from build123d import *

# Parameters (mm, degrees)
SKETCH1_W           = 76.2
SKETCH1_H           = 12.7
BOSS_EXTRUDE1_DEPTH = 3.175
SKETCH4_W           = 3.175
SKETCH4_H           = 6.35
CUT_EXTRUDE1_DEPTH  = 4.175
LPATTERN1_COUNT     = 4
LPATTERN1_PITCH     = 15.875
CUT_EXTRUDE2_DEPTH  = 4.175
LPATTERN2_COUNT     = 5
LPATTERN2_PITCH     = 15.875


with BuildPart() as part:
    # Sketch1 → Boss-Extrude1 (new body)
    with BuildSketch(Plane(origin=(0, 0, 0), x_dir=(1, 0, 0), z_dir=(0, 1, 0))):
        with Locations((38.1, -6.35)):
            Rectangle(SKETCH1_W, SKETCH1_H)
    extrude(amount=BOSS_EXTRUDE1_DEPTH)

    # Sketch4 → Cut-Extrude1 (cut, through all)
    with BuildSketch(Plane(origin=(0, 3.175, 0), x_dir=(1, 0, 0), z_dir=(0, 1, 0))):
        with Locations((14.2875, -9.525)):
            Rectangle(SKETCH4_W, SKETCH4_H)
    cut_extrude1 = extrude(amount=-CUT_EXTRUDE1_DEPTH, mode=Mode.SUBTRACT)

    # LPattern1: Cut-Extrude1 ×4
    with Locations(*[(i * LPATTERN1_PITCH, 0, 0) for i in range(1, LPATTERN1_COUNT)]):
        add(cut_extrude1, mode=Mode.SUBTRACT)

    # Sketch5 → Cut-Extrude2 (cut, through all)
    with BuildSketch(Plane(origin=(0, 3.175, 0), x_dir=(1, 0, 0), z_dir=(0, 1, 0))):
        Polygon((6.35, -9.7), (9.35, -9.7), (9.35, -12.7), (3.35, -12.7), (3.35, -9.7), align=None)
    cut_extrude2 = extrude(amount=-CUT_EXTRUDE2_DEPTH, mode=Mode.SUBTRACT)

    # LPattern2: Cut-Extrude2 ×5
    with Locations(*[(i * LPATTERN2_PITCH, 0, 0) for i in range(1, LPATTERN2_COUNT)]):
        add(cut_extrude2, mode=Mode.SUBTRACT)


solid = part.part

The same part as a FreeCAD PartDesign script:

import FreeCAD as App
import Part
import Sketcher
Q = App.Units.Quantity

doc = App.newDocument("Part")
body = doc.addObject("PartDesign::Body", "Body")

# Sketch on XZ plane
sketch1 = doc.addObject("Sketcher::SketchObject", "Sketch")
body.addObject(sketch1)
sketch1.AttachmentSupport = (doc.XZ_Plane, [""])
sketch1.MapMode = "FlatFace"
sketch1.addGeometry([
    Part.LineSegment(App.Vector(0, 0, 0), App.Vector(0, 13, 0)),
    Part.LineSegment(App.Vector(0, 13, 0), App.Vector(76, 13, 0)),
    Part.LineSegment(App.Vector(76, 13, 0), App.Vector(76, 0, 0)),
    Part.LineSegment(App.Vector(76, 0, 0), App.Vector(0, 0, 0)),
], False)
sketch1.addConstraint([
    Sketcher.Constraint("Coincident", 0, 2, 1, 1),
    Sketcher.Constraint("Coincident", 1, 2, 2, 1),
    Sketcher.Constraint("Coincident", 2, 2, 3, 1),
    Sketcher.Constraint("Coincident", 3, 2, 0, 1),
    Sketcher.Constraint("Vertical", 0),
    Sketcher.Constraint("Horizontal", 1),
    Sketcher.Constraint("Vertical", 2),
    Sketcher.Constraint("Horizontal", 3),
    Sketcher.Constraint("Coincident", 3, 2, -1, 1),
    Sketcher.Constraint("DistanceX", 1, 1, 1, 2, Q("3 in")),
    Sketcher.Constraint("DistanceY", 0, 1, 0, 2, Q("0.5 in")),
])
pad1 = doc.addObject("PartDesign::Pad", "Pad")
body.addObject(pad1)
pad1.Profile = sketch1
pad1.Length = Q("0.125 in")
pad1.Reversed = True

# Sketch on XZ plane
sketch2 = doc.addObject("Sketcher::SketchObject", "Sketch001")
body.addObject(sketch2)
sketch2.AttachmentSupport = (doc.XZ_Plane, [""])
sketch2.MapMode = "FlatFace"
sketch2.AttachmentOffset = App.Placement(App.Vector(0, 0, -0.125 * 25.4), App.Rotation())
sketch2.addGeometry([
    Part.LineSegment(App.Vector(12.7, 6.3, 0), App.Vector(12.7, 12.7, 0)),
    Part.LineSegment(App.Vector(12.7, 12.7, 0), App.Vector(15.9, 12.7, 0)),
    Part.LineSegment(App.Vector(15.9, 12.7, 0), App.Vector(15.9, 6.3, 0)),
    Part.LineSegment(App.Vector(15.9, 6.3, 0), App.Vector(12.7, 6.3, 0)),
], False)
sketch2.addConstraint([
    Sketcher.Constraint("Coincident", 0, 2, 1, 1),
    Sketcher.Constraint("Coincident", 1, 2, 2, 1),
    Sketcher.Constraint("Coincident", 2, 2, 3, 1),
    Sketcher.Constraint("Coincident", 3, 2, 0, 1),
    Sketcher.Constraint("Vertical", 0),
    Sketcher.Constraint("Horizontal", 1),
    Sketcher.Constraint("Vertical", 2),
    Sketcher.Constraint("Horizontal", 3),
    Sketcher.Constraint("DistanceY", 0, 1, 0, 2, Q("0.25 in")),
    Sketcher.Constraint("DistanceX", -1, 1, 0, 2, Q("0.5 in")),
    Sketcher.Constraint("DistanceY", -1, 1, 0, 2, Q("0.5 in")),
    Sketcher.Constraint("DistanceX", 1, 1, 1, 2, Q("0.125 in")),
])
pocket1 = doc.addObject("PartDesign::Pocket", "Pocket")
body.addObject(pocket1)
pocket1.Profile = sketch2
pocket1.Type = "ThroughAll"
pocket1.Reversed = True
doc.recompute()

linearpattern = doc.addObject("PartDesign::LinearPattern", "LinearPattern")
body.addObject(linearpattern)
linearpattern.Originals = [pocket1]
linearpattern.Direction = (doc.X_Axis, [""])
linearpattern.Mode = "offset"
linearpattern.Offset = Q("0.625 in")
linearpattern.Occurrences = 4
body.Tip = linearpattern

# Sketch on XZ plane
sketch3 = doc.addObject("Sketcher::SketchObject", "Sketch002")
body.addObject(sketch3)
sketch3.AttachmentSupport = (doc.XZ_Plane, [""])
sketch3.MapMode = "FlatFace"
sketch3.AttachmentOffset = App.Placement(App.Vector(0, 0, -0.125 * 25.4), App.Rotation())
sketch3.addGeometry([
    Part.LineSegment(App.Vector(9.3, 9.7, 0), App.Vector(3.4, 9.7, 0)),
    Part.LineSegment(App.Vector(3.4, 9.7, 0), App.Vector(3.4, 12.7, 0)),
    Part.LineSegment(App.Vector(3.4, 12.7, 0), App.Vector(9.3, 12.7, 0)),
    Part.LineSegment(App.Vector(9.3, 12.7, 0), App.Vector(9.3, 9.7, 0)),
], False)
sketch3.addConstraint([
    Sketcher.Constraint("Coincident", 0, 2, 1, 1),
    Sketcher.Constraint("Coincident", 1, 2, 2, 1),
    Sketcher.Constraint("Coincident", 2, 2, 3, 1),
    Sketcher.Constraint("Coincident", 3, 2, 0, 1),
    Sketcher.Constraint("Horizontal", 0),
    Sketcher.Constraint("Vertical", 1),
    Sketcher.Constraint("Horizontal", 2),
    Sketcher.Constraint("Vertical", 3),
    Sketcher.Constraint("DistanceY", -1, 1, 1, 2, Q("0.5 in")),
    Sketcher.Constraint("DistanceX", 0, 2, 0, 1, Q("6 mm")),
    Sketcher.Constraint("DistanceY", 1, 1, 1, 2, Q("3 mm")),
    Sketcher.Constraint("DistanceX", -1, 1, 0, 2, Q("3.35 mm")),
])
pocket2 = doc.addObject("PartDesign::Pocket", "Pocket001")
body.addObject(pocket2)
pocket2.Profile = sketch3
pocket2.Type = "ThroughAll"
pocket2.Reversed = True
doc.recompute()

linearpattern2 = doc.addObject("PartDesign::LinearPattern", "LinearPattern001")
body.addObject(linearpattern2)
linearpattern2.Originals = [pocket2]
linearpattern2.Direction = (doc.X_Axis, [""])
linearpattern2.Mode = "offset"
linearpattern2.Offset = Q("0.625 in")
linearpattern2.Occurrences = 5
body.Tip = linearpattern2

doc.recompute()
